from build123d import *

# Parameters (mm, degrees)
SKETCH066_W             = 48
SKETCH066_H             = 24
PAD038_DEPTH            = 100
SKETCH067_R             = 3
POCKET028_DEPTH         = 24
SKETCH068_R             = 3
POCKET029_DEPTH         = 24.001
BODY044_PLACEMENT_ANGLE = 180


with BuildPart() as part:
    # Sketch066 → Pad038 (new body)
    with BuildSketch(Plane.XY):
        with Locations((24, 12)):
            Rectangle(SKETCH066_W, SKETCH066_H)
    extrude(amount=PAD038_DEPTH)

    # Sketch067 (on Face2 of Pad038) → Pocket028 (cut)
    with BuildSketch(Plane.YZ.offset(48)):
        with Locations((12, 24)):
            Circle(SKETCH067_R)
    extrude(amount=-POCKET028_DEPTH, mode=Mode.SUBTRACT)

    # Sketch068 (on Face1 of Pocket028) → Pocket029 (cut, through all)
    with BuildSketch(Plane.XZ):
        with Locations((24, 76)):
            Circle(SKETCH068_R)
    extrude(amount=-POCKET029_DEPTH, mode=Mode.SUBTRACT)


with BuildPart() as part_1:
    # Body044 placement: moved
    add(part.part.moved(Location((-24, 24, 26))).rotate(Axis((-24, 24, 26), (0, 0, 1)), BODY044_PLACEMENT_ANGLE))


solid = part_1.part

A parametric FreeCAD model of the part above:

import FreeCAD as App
import Part
import Sketcher

V = App.Vector

doc = App.newDocument("Part")
body = doc.addObject("PartDesign::Body", "Body")

# Sketch on XY plane
sketch1 = body.newObject("Sketcher::SketchObject", "Sketch")
sketch1.AttachmentSupport = (doc.getObject("XY_Plane"), [""])
sketch1.MapMode = "FlatFace"
sketch1.addGeometry(Part.LineSegment(V(0, 24, 0), V(0, 0, 0)), False)
sketch1.addGeometry(Part.LineSegment(V(0, 0, 0), V(48, 0, 0)), False)
sketch1.addGeometry(Part.LineSegment(V(48, 0, 0), V(48, 24, 0)), False)
sketch1.addGeometry(Part.LineSegment(V(48, 24, 0), V(0, 24, 0)), False)
sketch1.addConstraint(Sketcher.Constraint("Coincident", 0, 2, 1, 1))
sketch1.addConstraint(Sketcher.Constraint("Coincident", 1, 2, 2, 1))
sketch1.addConstraint(Sketcher.Constraint("Coincident", 2, 2, 3, 1))
sketch1.addConstraint(Sketcher.Constraint("Coincident", 3, 2, 0, 1))
sketch1.addConstraint(Sketcher.Constraint("Vertical", 0))
sketch1.addConstraint(Sketcher.Constraint("Horizontal", 1))
sketch1.addConstraint(Sketcher.Constraint("Vertical", 2))
sketch1.addConstraint(Sketcher.Constraint("Horizontal", 3))
sketch1.addConstraint(Sketcher.Constraint("Coincident", 0, 2, -1, 1))
sketch1.addConstraint(Sketcher.Constraint("DistanceX", 1, 1, 1, 2, 48.0))
sketch1.addConstraint(Sketcher.Constraint("DistanceY", 0, 2, 0, 1, 24.0))
pad1 = body.newObject("PartDesign::Pad", "Pad")
pad1.Profile = sketch1
pad1.Length = 100

# Sketch on YZ plane
sketch2 = body.newObject("Sketcher::SketchObject", "Sketch001")
sketch2.AttachmentSupport = (doc.getObject("YZ_Plane"), [""])
sketch2.MapMode = "FlatFace"
sketch2.AttachmentOffset = App.Placement(V(0, 0, 48), App.Rotation())
sketch2.addGeometry(Part.Circle(V(12, 24, 0), V(0, 0, 1), 3), False)
sketch2.addConstraint(Sketcher.Constraint("Diameter", 0, 6.0))
sketch2.addConstraint(Sketcher.Constraint("DistanceX", -1, 1, 0, 3, 12.0))
sketch2.addConstraint(Sketcher.Constraint("DistanceY", -1, 1, 0, 3, 24.0))
pocket1 = body.newObject("PartDesign::Pocket", "Pocket")
pocket1.Profile = sketch2
pocket1.Length = 24

# Sketch on XZ plane
sketch3 = body.newObject("Sketcher::SketchObject", "Sketch002")
sketch3.AttachmentSupport = (doc.getObject("XZ_Plane"), [""])
sketch3.MapMode = "FlatFace"
sketch3.addGeometry(Part.Circle(V(24, 76, 0), V(0, 0, 1), 3), False)
sketch3.addConstraint(Sketcher.Constraint("Diameter", 0, 6.0))
sketch3.addConstraint(Sketcher.Constraint("DistanceX", -1, 1, 0, 3, 24.0))
sketch3.addConstraint(Sketcher.Constraint("DistanceY", -1, 1, 0, 3, 76.0))
pocket2 = body.newObject("PartDesign::Pocket", "Pocket001")
pocket2.Profile = sketch3
pocket2.Type = "ThroughAll"
body2 = doc.addObject("PartDesign::Body", "Body001")
doc.recompute()

body.Placement = App.Placement(V(-24, 24, 26), App.Rotation(V(0, 0, 1), 180))
boolean = body2.newObject("PartDesign::Boolean", "Boolean")
boolean.Type = "Fuse"
boolean.addObjects([body])

doc.recompute()
